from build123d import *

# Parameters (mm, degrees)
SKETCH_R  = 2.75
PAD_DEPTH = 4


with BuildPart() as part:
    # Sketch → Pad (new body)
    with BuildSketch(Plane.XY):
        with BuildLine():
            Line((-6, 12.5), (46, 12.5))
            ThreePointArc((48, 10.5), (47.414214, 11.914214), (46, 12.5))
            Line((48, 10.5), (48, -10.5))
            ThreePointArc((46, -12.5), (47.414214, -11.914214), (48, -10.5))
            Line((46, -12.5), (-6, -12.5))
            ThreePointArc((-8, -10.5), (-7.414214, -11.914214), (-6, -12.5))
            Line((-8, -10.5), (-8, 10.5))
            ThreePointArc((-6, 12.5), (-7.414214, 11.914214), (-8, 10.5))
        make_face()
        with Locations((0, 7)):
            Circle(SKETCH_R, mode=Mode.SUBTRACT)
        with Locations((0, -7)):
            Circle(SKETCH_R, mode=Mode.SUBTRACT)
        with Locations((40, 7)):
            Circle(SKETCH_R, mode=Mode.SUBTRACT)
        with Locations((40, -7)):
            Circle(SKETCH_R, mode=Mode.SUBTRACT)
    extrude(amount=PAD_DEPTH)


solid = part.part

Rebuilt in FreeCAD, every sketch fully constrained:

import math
import FreeCAD as App
import Part
import Sketcher

doc = App.newDocument("Part")
body = doc.addObject("PartDesign::Body", "Body")

sketch1 = body.newObject("Sketcher::SketchObject", "Sketch")
sketch1.AttachmentSupport = (doc.getObject("XY_Plane"), [""])
sketch1.MapMode = "FlatFace"
sketch1.addGeometry(Part.LineSegment(App.Vector(46, 12.5, 0), App.Vector(-6, 12.5, 0)), False)
sketch1.addGeometry(Part.ArcOfCircle(Part.Circle(App.Vector(-6.000001, 10.500001, 0), App.Vector(0, 0, 1), 1.999999), math.radians(89.999957), math.radians(180.000043)), False)
sketch1.addGeometry(Part.LineSegment(App.Vector(-8, 10.5, 0), App.Vector(-8, -10.5, 0)), False)
sketch1.addGeometry(Part.ArcOfCircle(Part.Circle(App.Vector(-6.000001, -10.500001, 0), App.Vector(0, 0, 1), 1.999999), math.radians(179.999957), math.radians(270.000043)), False)
sketch1.addGeometry(Part.LineSegment(App.Vector(-6, -12.5, 0), App.Vector(46, -12.5, 0)), False)
sketch1.addGeometry(Part.ArcOfCircle(Part.Circle(App.Vector(46.000001, -10.500001, 0), App.Vector(0, 0, 1), 1.999999), math.radians(-90.000043), math.radians(0.000043)), False)
sketch1.addGeometry(Part.LineSegment(App.Vector(48, -10.5, 0), App.Vector(48, 10.5, 0)), False)
sketch1.addGeometry(Part.ArcOfCircle(Part.Circle(App.Vector(46.000001, 10.500001, 0), App.Vector(0, 0, 1), 1.999999), math.radians(-0.000043), math.radians(90.000043)), False)
sketch1.addGeometry(Part.Circle(App.Vector(40, -7, 0), App.Vector(0, 0, 1), 2.75), False)
sketch1.addGeometry(Part.Circle(App.Vector(0, -7, 0), App.Vector(0, 0, 1), 2.75), False)
sketch1.addGeometry(Part.Circle(App.Vector(40, 7, 0), App.Vector(0, 0, 1), 2.75), False)
sketch1.addGeometry(Part.Circle(App.Vector(0, 7, 0), App.Vector(0, 0, 1), 2.75), False)
sketch1.addConstraint(Sketcher.Constraint("Tangent", 0, 2, 1, 1))
sketch1.addConstraint(Sketcher.Constraint("Tangent", 1, 2, 2, 1))
sketch1.addConstraint(Sketcher.Constraint("Tangent", 2, 2, 3, 1))
sketch1.addConstraint(Sketcher.Constraint("Tangent", 3, 2, 4, 1))
sketch1.addConstraint(Sketcher.Constraint("Tangent", 4, 2, 5, 1))
sketch1.addConstraint(Sketcher.Constraint("Tangent", 5, 2, 6, 1))
sketch1.addConstraint(Sketcher.Constraint("Tangent", 6, 2, 7, 1))
sketch1.addConstraint(Sketcher.Constraint("Tangent", 7, 2, 0, 1))
sketch1.addConstraint(Sketcher.Constraint("Horizontal", 0))
sketch1.addConstraint(Sketcher.Constraint("Vertical", 2))
sketch1.addConstraint(Sketcher.Constraint("Horizontal", 4))
sketch1.addConstraint(Sketcher.Constraint("Vertical", 6))
sketch1.addConstraint(Sketcher.Constraint("Equal", 1, 3))
sketch1.addConstraint(Sketcher.Constraint("Equal", 3, 5))
sketch1.addConstraint(Sketcher.Constraint("Equal", 5, 7))
sketch1.addConstraint(Sketcher.Constraint("Equal", 8, 9))
sketch1.addConstraint(Sketcher.Constraint("Equal", 9, 10))
sketch1.addConstraint(Sketcher.Constraint("Equal", 10, 11))
sketch1.addConstraint(Sketcher.Constraint("Symmetric", 9, 3, 11, 3, -1, 1))
sketch1.addConstraint(Sketcher.Constraint("Symmetric", 8, 3, 10, 3, -1))
sketch1.addConstraint(Sketcher.Constraint("PointOnObject", 9, 3, -2))
sketch1.addConstraint(Sketcher.Constraint("Horizontal", 8, 3, 9, 3))
sketch1.addConstraint(Sketcher.Constraint("Radius", 1, 1.999999))
sketch1.addConstraint(Sketcher.Constraint("Diameter", 8, 5.5))
sketch1.addConstraint(Sketcher.Constraint("DistanceX", 0, 2, 0, 1, 52.0))
sketch1.addConstraint(Sketcher.Constraint("DistanceY", 2, 2, 2, 1, 21.0))
sketch1.addConstraint(Sketcher.Constraint("DistanceX", 1, 3, -1, 1, 6.000001))
sketch1.addConstraint(Sketcher.Constraint("DistanceX", -1, 1, 8, 3, 40.0))
sketch1.addConstraint(Sketcher.Constraint("DistanceY", 8, 3, -1, 1, 7.0))
sketch1.addConstraint(Sketcher.Constraint("DistanceY", -1, 1, 1, 3, 10.500001))
pad1 = body.newObject("PartDesign::Pad", "Pad")
pad1.Profile = sketch1
pad1.Length = 4

doc.recompute()
